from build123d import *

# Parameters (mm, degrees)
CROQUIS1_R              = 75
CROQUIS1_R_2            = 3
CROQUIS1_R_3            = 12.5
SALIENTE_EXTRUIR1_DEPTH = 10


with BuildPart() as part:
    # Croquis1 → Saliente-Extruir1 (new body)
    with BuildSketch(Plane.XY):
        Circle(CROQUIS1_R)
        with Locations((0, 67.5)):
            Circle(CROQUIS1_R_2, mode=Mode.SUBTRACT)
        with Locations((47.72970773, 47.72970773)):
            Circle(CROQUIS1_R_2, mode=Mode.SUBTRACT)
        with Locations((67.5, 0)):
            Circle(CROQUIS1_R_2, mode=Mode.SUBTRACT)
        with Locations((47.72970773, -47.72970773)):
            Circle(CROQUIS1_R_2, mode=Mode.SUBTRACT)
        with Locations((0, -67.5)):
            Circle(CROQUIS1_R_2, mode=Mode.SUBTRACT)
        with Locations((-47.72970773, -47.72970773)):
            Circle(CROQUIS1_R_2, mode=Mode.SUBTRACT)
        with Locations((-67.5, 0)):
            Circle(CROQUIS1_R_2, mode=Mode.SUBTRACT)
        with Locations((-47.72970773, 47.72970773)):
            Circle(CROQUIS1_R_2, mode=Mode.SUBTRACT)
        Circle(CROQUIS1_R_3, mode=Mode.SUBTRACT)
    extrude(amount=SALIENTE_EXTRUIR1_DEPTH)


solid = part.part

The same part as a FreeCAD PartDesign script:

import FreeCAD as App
import Part
import Sketcher

V = App.Vector

doc = App.newDocument("Part")
body = doc.addObject("PartDesign::Body", "Body")

sketch1 = doc.addObject("Sketcher::SketchObject", "Sketch")
body.addObject(sketch1)
sketch1.AttachmentSupport = (doc.XY_Plane, [""])
sketch1.MapMode = "FlatFace"
sketch1.addGeometry([
    Part.Circle(V(0, 0, 0), V(0, 0, 1), 75),
    Part.Circle(V(-47.7, -47.7, 0), V(0, 0, 1), 3),
    Part.Circle(V(0, -67.5, 0), V(0, 0, 1), 3),
    Part.Circle(V(47.7, -47.7, 0), V(0, 0, 1), 3),
    Part.Circle(V(-67.5, 0, 0), V(0, 0, 1), 3),
    Part.Circle(V(-47.7, 47.7, 0), V(0, 0, 1), 3),
    Part.Circle(V(0, 0, 0), V(0, 0, 1), 12.5),
    Part.Circle(V(67.5, 0, 0), V(0, 0, 1), 3),
    Part.Circle(V(0, 67.5, 0), V(0, 0, 1), 3),
    Part.Circle(V(47.7, 47.7, 0), V(0, 0, 1), 3),
], False)
sketch1.addConstraint([
    Sketcher.Constraint("Coincident", 0, 3, -1, 1),
    Sketcher.Constraint("Coincident", 6, 3, -1, 1),
    Sketcher.Constraint("Equal", 1, 2),
    Sketcher.Constraint("Equal", 2, 3),
    Sketcher.Constraint("Equal", 3, 4),
    Sketcher.Constraint("Equal", 4, 5),
    Sketcher.Constraint("Equal", 5, 7),
    Sketcher.Constraint("Equal", 7, 8),
    Sketcher.Constraint("Equal", 8, 9),
    Sketcher.Constraint("Symmetric", 3, 3, 5, 3, -1, 1),
    Sketcher.Constraint("Symmetric", 4, 3, 7, 3, -1, 1),
    Sketcher.Constraint("Symmetric", 2, 3, 8, 3, -1, 1),
    Sketcher.Constraint("Symmetric", 1, 3, 9, 3, -1, 1),
    Sketcher.Constraint("Symmetric", 1, 3, 3, 3, -2),
    Sketcher.Constraint("PointOnObject", 2, 3, -2),
    Sketcher.Constraint("PointOnObject", 4, 3, -1),
    Sketcher.Constraint("Diameter", 0, 150.0),
    Sketcher.Constraint("Diameter", 1, 6.0),
    Sketcher.Constraint("Diameter", 6, 25.0),
    Sketcher.Constraint("DistanceY", 2, 3, -1, 1, 67.5),
    Sketcher.Constraint("DistanceX", 4, 3, -1, 1, 67.5),
    Sketcher.Constraint("DistanceX", 1, 3, -1, 1, 47.729708),
    Sketcher.Constraint("DistanceY", 1, 3, -1, 1, 47.729708),
])
pad1 = doc.addObject("PartDesign::Pad", "Pad")
body.addObject(pad1)
pad1.Profile = sketch1
pad1.Length = 10

doc.recompute()
